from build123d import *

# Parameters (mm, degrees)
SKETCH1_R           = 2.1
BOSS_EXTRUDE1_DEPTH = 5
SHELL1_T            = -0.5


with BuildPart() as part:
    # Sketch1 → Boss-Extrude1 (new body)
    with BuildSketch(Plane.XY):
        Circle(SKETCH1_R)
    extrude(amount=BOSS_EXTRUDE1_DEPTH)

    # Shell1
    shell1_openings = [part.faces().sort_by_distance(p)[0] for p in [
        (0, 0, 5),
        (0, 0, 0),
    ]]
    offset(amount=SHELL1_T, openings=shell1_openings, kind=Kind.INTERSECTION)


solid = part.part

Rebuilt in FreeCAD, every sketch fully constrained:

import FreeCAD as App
import Part
import Sketcher

V = App.Vector
Q = App.Units.Quantity


def faces_at(feature, points):
    """Names of the faces that lie closest to the given points."""
    faces = feature.Shape.Faces
    near = lambda p: min(range(len(faces)), key=lambda i: faces[i].distToShape(Part.Vertex(*p))[0])
    return sorted({f"Face{near(p) + 1}" for p in points})

doc = App.newDocument("Part")
body = doc.addObject("PartDesign::Body", "Body")

sketch1 = body.newObject("Sketcher::SketchObject", "Sketch")
sketch1.AttachmentSupport = (doc.getObject("XY_Plane"), [""])
sketch1.MapMode = "FlatFace"
sketch1.addGeometry(Part.Circle(V(0, 0, 0), V(0, 0, 1), 2.1), False)
sketch1.addConstraint([
    Sketcher.Constraint("Coincident", 0, 3, -1, 1),
    Sketcher.Constraint("Diameter", 0, Q("4.2 mm")),
])
pad1 = body.newObject("PartDesign::Pad", "Pad")
pad1.Profile = sketch1
pad1.Length = 5
doc.recompute()

thickness = body.newObject("PartDesign::Thickness", "Thickness")
thickness.Base = (pad1, faces_at(pad1, [(0, 0, 5), (0, 0, 0)]))
thickness.Value = 0.5
thickness.Reversed = True
thickness.Join = "Intersection"

doc.recompute()
